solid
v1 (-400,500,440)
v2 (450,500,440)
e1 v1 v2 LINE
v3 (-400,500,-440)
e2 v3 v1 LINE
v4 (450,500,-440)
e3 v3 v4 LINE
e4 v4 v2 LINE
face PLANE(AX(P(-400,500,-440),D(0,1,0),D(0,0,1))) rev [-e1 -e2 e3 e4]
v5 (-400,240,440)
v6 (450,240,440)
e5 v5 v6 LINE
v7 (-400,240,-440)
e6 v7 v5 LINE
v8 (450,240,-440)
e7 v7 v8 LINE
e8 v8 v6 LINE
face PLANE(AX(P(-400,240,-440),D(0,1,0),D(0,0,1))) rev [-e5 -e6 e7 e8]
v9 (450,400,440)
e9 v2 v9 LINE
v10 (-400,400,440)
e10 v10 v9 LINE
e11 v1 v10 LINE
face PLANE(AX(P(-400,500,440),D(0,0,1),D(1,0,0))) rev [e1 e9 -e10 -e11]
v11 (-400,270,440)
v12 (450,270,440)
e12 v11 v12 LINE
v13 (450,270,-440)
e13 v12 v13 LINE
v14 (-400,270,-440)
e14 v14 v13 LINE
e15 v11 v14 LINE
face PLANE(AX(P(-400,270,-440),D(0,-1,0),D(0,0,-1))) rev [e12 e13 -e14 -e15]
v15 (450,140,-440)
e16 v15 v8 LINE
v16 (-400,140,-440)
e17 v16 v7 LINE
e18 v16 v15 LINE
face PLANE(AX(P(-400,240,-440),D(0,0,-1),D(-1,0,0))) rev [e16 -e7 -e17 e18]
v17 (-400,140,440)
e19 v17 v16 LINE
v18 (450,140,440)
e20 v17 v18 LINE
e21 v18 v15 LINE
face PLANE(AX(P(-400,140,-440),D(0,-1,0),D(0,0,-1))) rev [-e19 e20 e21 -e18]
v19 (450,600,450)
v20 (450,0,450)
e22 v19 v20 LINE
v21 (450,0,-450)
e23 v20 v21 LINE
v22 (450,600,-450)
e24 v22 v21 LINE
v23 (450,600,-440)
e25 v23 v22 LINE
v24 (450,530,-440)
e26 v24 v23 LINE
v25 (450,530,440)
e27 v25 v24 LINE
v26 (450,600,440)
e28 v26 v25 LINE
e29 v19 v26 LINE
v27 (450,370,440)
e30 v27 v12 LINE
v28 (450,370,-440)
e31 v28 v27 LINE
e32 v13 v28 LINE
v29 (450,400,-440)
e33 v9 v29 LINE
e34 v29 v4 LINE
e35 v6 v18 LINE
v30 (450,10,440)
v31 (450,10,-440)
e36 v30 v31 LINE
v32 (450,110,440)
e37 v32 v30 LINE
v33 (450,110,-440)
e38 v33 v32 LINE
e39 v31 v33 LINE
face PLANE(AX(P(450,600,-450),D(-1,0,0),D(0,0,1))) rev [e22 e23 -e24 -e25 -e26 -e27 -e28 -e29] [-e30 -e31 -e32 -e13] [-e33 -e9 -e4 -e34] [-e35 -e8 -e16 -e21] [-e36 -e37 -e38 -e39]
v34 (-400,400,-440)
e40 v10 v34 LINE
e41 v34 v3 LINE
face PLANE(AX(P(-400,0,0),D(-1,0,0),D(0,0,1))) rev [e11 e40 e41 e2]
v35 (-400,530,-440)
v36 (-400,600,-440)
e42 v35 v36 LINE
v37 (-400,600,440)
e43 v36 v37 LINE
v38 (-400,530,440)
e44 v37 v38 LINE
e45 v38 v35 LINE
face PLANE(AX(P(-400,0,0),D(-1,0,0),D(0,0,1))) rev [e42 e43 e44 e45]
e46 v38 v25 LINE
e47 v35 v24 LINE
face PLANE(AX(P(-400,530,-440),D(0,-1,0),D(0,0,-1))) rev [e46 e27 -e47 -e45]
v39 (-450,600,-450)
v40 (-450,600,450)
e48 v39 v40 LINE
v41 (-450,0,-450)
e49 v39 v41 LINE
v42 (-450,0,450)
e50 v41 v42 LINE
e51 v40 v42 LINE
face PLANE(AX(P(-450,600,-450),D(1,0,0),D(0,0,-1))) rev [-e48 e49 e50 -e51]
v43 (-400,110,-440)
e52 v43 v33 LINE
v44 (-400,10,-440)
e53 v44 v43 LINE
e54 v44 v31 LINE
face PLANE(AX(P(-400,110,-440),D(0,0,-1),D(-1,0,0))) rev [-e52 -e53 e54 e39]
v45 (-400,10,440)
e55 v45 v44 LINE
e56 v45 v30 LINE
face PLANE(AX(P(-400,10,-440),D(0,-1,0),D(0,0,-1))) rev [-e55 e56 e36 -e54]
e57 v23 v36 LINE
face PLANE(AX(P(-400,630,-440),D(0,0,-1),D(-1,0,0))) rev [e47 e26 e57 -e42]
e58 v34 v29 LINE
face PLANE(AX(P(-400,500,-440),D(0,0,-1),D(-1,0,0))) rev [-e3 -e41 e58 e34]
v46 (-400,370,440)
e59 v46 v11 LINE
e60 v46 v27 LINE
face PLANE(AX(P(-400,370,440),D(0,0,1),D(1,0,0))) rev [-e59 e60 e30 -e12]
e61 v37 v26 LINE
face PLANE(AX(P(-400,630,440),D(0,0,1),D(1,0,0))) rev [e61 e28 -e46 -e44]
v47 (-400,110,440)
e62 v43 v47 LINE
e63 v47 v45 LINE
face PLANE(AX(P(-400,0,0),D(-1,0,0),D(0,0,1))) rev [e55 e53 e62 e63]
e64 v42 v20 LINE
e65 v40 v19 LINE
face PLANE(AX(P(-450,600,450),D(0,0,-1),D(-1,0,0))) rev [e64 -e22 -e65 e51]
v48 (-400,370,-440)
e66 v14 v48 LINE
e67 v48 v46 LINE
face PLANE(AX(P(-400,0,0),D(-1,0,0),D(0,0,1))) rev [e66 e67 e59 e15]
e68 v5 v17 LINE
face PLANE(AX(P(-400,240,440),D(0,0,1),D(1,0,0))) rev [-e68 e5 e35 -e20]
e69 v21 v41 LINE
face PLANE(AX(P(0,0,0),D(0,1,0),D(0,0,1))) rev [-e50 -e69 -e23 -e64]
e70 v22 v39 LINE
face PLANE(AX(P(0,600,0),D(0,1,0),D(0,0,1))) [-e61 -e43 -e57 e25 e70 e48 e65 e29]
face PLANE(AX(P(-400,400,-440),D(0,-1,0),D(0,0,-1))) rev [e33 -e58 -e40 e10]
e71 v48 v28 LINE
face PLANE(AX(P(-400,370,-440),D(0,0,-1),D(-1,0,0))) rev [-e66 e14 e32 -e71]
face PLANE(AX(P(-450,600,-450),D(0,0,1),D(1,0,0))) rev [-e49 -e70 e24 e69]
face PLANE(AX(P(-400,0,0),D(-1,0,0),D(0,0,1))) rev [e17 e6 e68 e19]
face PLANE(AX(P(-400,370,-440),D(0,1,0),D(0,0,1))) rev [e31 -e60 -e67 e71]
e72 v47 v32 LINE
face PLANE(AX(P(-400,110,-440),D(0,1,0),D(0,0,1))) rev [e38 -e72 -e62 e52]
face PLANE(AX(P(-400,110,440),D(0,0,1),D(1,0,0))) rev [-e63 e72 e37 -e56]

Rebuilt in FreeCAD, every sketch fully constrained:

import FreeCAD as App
import Part
import Sketcher

V = App.Vector


def add_polygon(sketch, points):
    """Adds a closed chain of lines whose ends are joined by coincident constraints."""
    first, n = sketch.GeometryCount, len(points)
    for a, b in zip(points, points[1:] + points[:1]):
        sketch.addGeometry(Part.LineSegment(App.Vector(*a, 0), App.Vector(*b, 0)), False)
    for i in range(n):
        sketch.addConstraint(Sketcher.Constraint("Coincident", first + i, 2, first + (i + 1) % n, 1))

doc = App.newDocument("Part")
params = doc.addObject("Spreadsheet::Sheet", "Params")
for row, (alias, value) in enumerate([
    ("sketch1_width", "900 mm"),
    ("pad1_length", "600 mm"),
    ("sketch2_width", "100 mm"),
    ("sketch2_height", "880 mm"),
    ("pocket1_length", "850 mm"),
], start=1):
    params.set(f"A{row}", alias)
    params.set(f"B{row}", "=" + value)
    params.setAlias(f"B{row}", alias)

body = doc.addObject("PartDesign::Body", "Body")

# Sketch on XZ plane
sketch1 = body.newObject("Sketcher::SketchObject", "Sketch")
sketch1.AttachmentSupport = (doc.getObject("XZ_Plane"), [""])
sketch1.MapMode = "FlatFace"
add_polygon(sketch1, [(-450, -450), (-450, 450), (450, 450), (450, -450)])  # lines 0-3
sketch1.addConstraint([
    Sketcher.Constraint("Vertical", 0),
    Sketcher.Constraint("Horizontal", 1),
    Sketcher.Constraint("Vertical", 2),
    Sketcher.Constraint("Horizontal", 3),
    Sketcher.Constraint("Symmetric", 0, 2, 2, 2, -1, 1),
    Sketcher.Constraint("Equal", 3, 0),
    Sketcher.Constraint("DistanceX", 1, 1, 1, 2, 900.0),
])
sketch1.setExpression("Constraints[10]", "Params.sketch1_width")
pad1 = body.newObject("PartDesign::Pad", "Pad")
pad1.Profile = sketch1
pad1.setExpression("Length", "Params.pad1_length")
pad1.Reversed = True

# Sketch on YZ plane
sketch2 = body.newObject("Sketcher::SketchObject", "Sketch001")
sketch2.AttachmentSupport = (doc.getObject("YZ_Plane"), [""])
sketch2.MapMode = "FlatFace"
sketch2.AttachmentOffset = App.Placement(V(0, 0, 450), App.Rotation())
add_polygon(sketch2, [(110, 440), (10, 440), (10, -440), (110, -440)])  # lines 0-3
add_polygon(sketch2, [(240, 440), (140, 440), (140, -440), (240, -440)])  # lines 4-7
add_polygon(sketch2, [(370, 440), (270, 440), (270, -440), (370, -440)])  # lines 8-11
add_polygon(sketch2, [(500, 440), (400, 440), (400, -440), (500, -440)])  # lines 12-15
add_polygon(sketch2, [(630, 440), (530, 440), (530, -440), (630, -440)])  # lines 16-19
sketch2.addConstraint([
    Sketcher.Constraint("Horizontal", 0),
    Sketcher.Constraint("Vertical", 1),
    Sketcher.Constraint("Horizontal", 2),
    Sketcher.Constraint("Vertical", 3),
    Sketcher.Constraint("Horizontal", 4),
    Sketcher.Constraint("Vertical", 5),
    Sketcher.Constraint("Horizontal", 6),
    Sketcher.Constraint("Vertical", 7),
    Sketcher.Constraint("Horizontal", 8),
    Sketcher.Constraint("Vertical", 9),
    Sketcher.Constraint("Horizontal", 10),
    Sketcher.Constraint("Vertical", 11),
    Sketcher.Constraint("Horizontal", 12),
    Sketcher.Constraint("Vertical", 13),
    Sketcher.Constraint("Horizontal", 14),
    Sketcher.Constraint("Vertical", 15),
    Sketcher.Constraint("Horizontal", 16),
    Sketcher.Constraint("Vertical", 17),
    Sketcher.Constraint("Horizontal", 18),
    Sketcher.Constraint("Vertical", 19),
    Sketcher.Constraint("Horizontal", 3, 2, 4, 2),
    Sketcher.Constraint("Horizontal", 2, 2, 5, 2),
    Sketcher.Constraint("Horizontal", 7, 2, 8, 2),
    Sketcher.Constraint("Horizontal", 6, 2, 9, 2),
    Sketcher.Constraint("Horizontal", 11, 2, 12, 2),
    Sketcher.Constraint("Horizontal", 10, 2, 13, 2),
    Sketcher.Constraint("Horizontal", 15, 2, 16, 2),
    Sketcher.Constraint("Horizontal", 14, 2, 17, 2),
    Sketcher.Constraint("Equal", 2, 4),
    Sketcher.Constraint("Equal", 6, 8),
    Sketcher.Constraint("Equal", 10, 12),
    Sketcher.Constraint("Equal", 14, 16),
    Sketcher.Constraint("DistanceX", 0, 2, 0, 1, 100.0),
    Sketcher.Constraint("DistanceY", 1, 2, 1, 1, 880.0),
    Sketcher.Constraint("DistanceX", -1, 1, 0, 2, 10.0),
    Sketcher.Constraint("DistanceY", -1, 1, 0, 2, 440.0),
    Sketcher.Constraint("DistanceX", -1, 1, 4, 2, 140.0),
    Sketcher.Constraint("DistanceX", -1, 1, 8, 2, 270.0),
    Sketcher.Constraint("DistanceX", -1, 1, 12, 2, 400.0),
    Sketcher.Constraint("DistanceX", -1, 1, 16, 2, 530.0),
])
sketch2.setExpression("Constraints[52]", "Params.sketch2_width")
sketch2.setExpression("Constraints[53]", "Params.sketch2_height")
pocket1 = body.newObject("PartDesign::Pocket", "Pocket")
pocket1.Profile = sketch2
pocket1.setExpression("Length", "Params.pocket1_length")

doc.recompute()
